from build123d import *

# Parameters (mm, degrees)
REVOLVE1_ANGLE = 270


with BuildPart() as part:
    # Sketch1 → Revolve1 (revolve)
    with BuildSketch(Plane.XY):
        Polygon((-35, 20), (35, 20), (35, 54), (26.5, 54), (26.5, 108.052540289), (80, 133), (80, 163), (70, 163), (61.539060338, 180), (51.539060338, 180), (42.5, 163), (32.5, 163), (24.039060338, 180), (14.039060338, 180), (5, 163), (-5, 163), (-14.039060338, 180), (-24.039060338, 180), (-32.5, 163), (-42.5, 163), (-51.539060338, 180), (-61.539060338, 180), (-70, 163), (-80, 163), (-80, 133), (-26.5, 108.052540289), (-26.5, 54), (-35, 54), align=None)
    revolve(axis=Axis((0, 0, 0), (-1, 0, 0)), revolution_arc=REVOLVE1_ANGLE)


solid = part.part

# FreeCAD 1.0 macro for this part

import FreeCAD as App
import Part
import Sketcher
from FreeCAD import Vector
Q = App.Units.Quantity


def add_polygon(sketch, points):
    """Adds a closed chain of lines whose ends are joined by coincident constraints."""
    first, n = sketch.GeometryCount, len(points)
    for a, b in zip(points, points[1:] + points[:1]):
        sketch.addGeometry(Part.LineSegment(App.Vector(*a, 0), App.Vector(*b, 0)), False)
    for i in range(n):
        sketch.addConstraint(Sketcher.Constraint("Coincident", first + i, 2, first + (i + 1) % n, 1))

doc = App.newDocument("Part")
body = doc.addObject("PartDesign::Body", "Body")

# Sketch on XY plane
sketch1 = body.newObject("Sketcher::SketchObject", "Sketch")
sketch1.AttachmentSupport = (doc.getObject("XY_Plane"), [""])
sketch1.MapMode = "FlatFace"
add_polygon(sketch1, [(-35, 20), (35, 20), (35, 54), (26.5, 54), (26.5, 108.05254), (80, 133), (80, 163), (70, 163), (61.53906, 180), (51.53906, 180), (42.5, 163), (32.5, 163), (24.03906, 180), (14.03906, 180), (5, 163), (-5, 163), (-14.03906, 180), (-24.03906, 180), (-32.5, 163), (-42.5, 163), (-51.53906, 180), (-61.53906, 180), (-70, 163), (-80, 163), (-80, 133), (-26.5, 108.05254), (-26.5, 54), (-35, 54)])  # lines 0-27
sketch1.addConstraint([
    Sketcher.Constraint("Horizontal", 0),
    Sketcher.Constraint("Vertical", 1),
    Sketcher.Constraint("Horizontal", 2),
    Sketcher.Constraint("Vertical", 3),
    Sketcher.Constraint("Vertical", 5),
    Sketcher.Constraint("Horizontal", 6),
    Sketcher.Constraint("Horizontal", 8),
    Sketcher.Constraint("Horizontal", 10),
    Sketcher.Constraint("Horizontal", 12),
    Sketcher.Constraint("Horizontal", 14),
    Sketcher.Constraint("Horizontal", 16),
    Sketcher.Constraint("Horizontal", 18),
    Sketcher.Constraint("Horizontal", 20),
    Sketcher.Constraint("Horizontal", 22),
    Sketcher.Constraint("Vertical", 23),
    Sketcher.Constraint("Vertical", 25),
    Sketcher.Constraint("Horizontal", 26),
    Sketcher.Constraint("Vertical", 27),
    Sketcher.Constraint("Symmetric", 12, 2, 15, 2, -2),
    Sketcher.Constraint("Symmetric", 10, 2, 17, 2, -2),
    Sketcher.Constraint("Symmetric", 8, 2, 19, 2, -2),
    Sketcher.Constraint("Symmetric", 6, 2, 21, 2, -2),
    Sketcher.Constraint("Symmetric", 4, 2, 23, 2, -2),
    Sketcher.Constraint("Symmetric", 3, 2, 24, 2, -2),
    Sketcher.Constraint("Symmetric", 1, 2, 26, 2, -2),
    Sketcher.Constraint("Parallel", 7, 11),
    Sketcher.Constraint("Parallel", 9, 13),
    Sketcher.Constraint("Parallel", 15, 19),
    Sketcher.Constraint("Parallel", 17, 21),
    Sketcher.Constraint("Horizontal", 6, 2, 9, 2),
    Sketcher.Constraint("Horizontal", 8, 2, 11, 2),
    Sketcher.Constraint("Horizontal", 10, 2, 13, 2),
    Sketcher.Constraint("Equal", 6, 8),
    Sketcher.Constraint("Equal", 8, 10),
    Sketcher.Constraint("Equal", 10, 12),
    Sketcher.Constraint("Equal", 12, 14),
    Sketcher.Constraint("Equal", 14, 16),
    Sketcher.Constraint("Equal", 16, 18),
    Sketcher.Constraint("DistanceX", 0, 1, 0, 2, 70.0),
    Sketcher.Constraint("DistanceX", 6, 2, 6, 1, 10.0),
    Sketcher.Constraint("DistanceY", 1, 1, 1, 2, 34.0),
    Sketcher.Constraint("DistanceY", 5, 1, 5, 2, 30.0),
    Sketcher.Constraint("Angle", 4, Q("25 deg")),
    Sketcher.Constraint("Angle", 9, Q("-118 deg")),
    Sketcher.Constraint("DistanceX", 2, 2, 2, 1, 8.5),
    Sketcher.Constraint("DistanceY", -1, 1, 0, 2, 20.0),
    Sketcher.Constraint("DistanceX", -1, 1, 4, 2, 80.0),
    Sketcher.Constraint("DistanceY", -1, 1, 4, 2, 133.0),
    Sketcher.Constraint("DistanceY", -1, 1, 7, 2, 180.0),
])
revolution = body.newObject("PartDesign::Revolution", "Revolution")
revolution.Profile = sketch1
revolution.ReferenceAxis = (sketch1, ["H_Axis"])
revolution.Angle = 270
revolution.Reversed = True

doc.recompute()
